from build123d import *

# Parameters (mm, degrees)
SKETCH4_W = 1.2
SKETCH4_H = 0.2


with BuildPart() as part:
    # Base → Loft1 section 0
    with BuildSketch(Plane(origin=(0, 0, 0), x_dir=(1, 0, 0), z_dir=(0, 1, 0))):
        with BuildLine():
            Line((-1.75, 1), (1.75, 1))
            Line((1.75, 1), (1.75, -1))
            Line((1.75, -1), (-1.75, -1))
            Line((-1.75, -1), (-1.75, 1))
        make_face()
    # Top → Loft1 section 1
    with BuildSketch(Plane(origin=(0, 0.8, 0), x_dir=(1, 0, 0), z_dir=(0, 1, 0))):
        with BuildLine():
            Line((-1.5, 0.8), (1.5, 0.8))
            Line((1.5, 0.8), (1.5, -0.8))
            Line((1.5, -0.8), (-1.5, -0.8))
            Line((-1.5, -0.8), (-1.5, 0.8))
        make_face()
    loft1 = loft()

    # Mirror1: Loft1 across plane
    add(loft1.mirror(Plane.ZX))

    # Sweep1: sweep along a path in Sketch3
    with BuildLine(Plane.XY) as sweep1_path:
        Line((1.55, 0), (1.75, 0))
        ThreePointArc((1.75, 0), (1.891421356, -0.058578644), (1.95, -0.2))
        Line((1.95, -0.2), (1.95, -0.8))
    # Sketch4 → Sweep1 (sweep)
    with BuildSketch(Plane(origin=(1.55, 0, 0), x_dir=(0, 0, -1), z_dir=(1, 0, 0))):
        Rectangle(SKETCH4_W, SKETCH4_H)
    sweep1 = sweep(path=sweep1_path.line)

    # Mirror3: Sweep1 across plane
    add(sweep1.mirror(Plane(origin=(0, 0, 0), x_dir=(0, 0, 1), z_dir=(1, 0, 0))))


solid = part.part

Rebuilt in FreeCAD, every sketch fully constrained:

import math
import FreeCAD as App
import Part
import Sketcher

V = App.Vector
Q = App.Units.Quantity

doc = App.newDocument("Part")
params = doc.addObject("Spreadsheet::Sheet", "Params")
for row, (alias, value) in enumerate([
    ("sketch1_height", "2 mm"),
    ("sketch1_width", "3.5 mm"),
    ("sketch2_width", "3 mm"),
    ("sketch2_height", "1.6 mm"),
    ("sketch3_width", "0.2 mm"),
    ("sketch3_height", "1.2 mm"),
    ("sketch4_radius", "0.2 mm"),
    ("sketch4_width", "0.2 mm"),
    ("sketch4_height", "0.6 mm"),
], start=1):
    params.set(f"A{row}", alias)
    params.set(f"B{row}", "=" + value)
    params.setAlias(f"B{row}", alias)

body = doc.addObject("PartDesign::Body", "Body")

# Sketch on XZ plane
sketch1 = doc.addObject("Sketcher::SketchObject", "Sketch")
body.addObject(sketch1)
sketch1.AttachmentSupport = (doc.XZ_Plane, [""])
sketch1.MapMode = "FlatFace"
sketch1.addGeometry(Part.LineSegment(V(1.8, -1, 0), V(-1.8, -1, 0)), False)
sketch1.addGeometry(Part.LineSegment(V(-1.8, -1, 0), V(-1.8, 1, 0)), False)
sketch1.addGeometry(Part.LineSegment(V(-1.8, 1, 0), V(1.8, 1, 0)), False)
sketch1.addGeometry(Part.LineSegment(V(1.8, 1, 0), V(1.8, -1, 0)), False)
sketch1.addConstraint(Sketcher.Constraint("Coincident", 0, 2, 1, 1))
sketch1.addConstraint(Sketcher.Constraint("Coincident", 1, 2, 2, 1))
sketch1.addConstraint(Sketcher.Constraint("Coincident", 2, 2, 3, 1))
sketch1.addConstraint(Sketcher.Constraint("Coincident", 3, 2, 0, 1))
sketch1.addConstraint(Sketcher.Constraint("Horizontal", 0))
sketch1.addConstraint(Sketcher.Constraint("Vertical", 1))
sketch1.addConstraint(Sketcher.Constraint("Horizontal", 2))
sketch1.addConstraint(Sketcher.Constraint("Vertical", 3))
sketch1.addConstraint(Sketcher.Constraint("Symmetric", 0, 2, 2, 2, -1, 1))
sketch1.addConstraint(Sketcher.Constraint("DistanceY", 1, 1, 1, 2, Q("2 mm")))
sketch1.addConstraint(Sketcher.Constraint("DistanceX", 0, 2, 0, 1, Q("3.5 mm")))
sketch1.setExpression("Constraints[9]", "Params.sketch1_height")
sketch1.setExpression("Constraints[10]", "Params.sketch1_width")

# Sketch on XZ plane
sketch2 = doc.addObject("Sketcher::SketchObject", "Sketch001")
body.addObject(sketch2)
sketch2.AttachmentSupport = (doc.XZ_Plane, [""])
sketch2.MapMode = "FlatFace"
sketch2.AttachmentOffset = App.Placement(V(0, 0, -0.8), App.Rotation())
sketch2.addGeometry(Part.LineSegment(V(1.5, -0.8, 0), V(-1.5, -0.8, 0)), False)
sketch2.addGeometry(Part.LineSegment(V(-1.5, -0.8, 0), V(-1.5, 0.8, 0)), False)
sketch2.addGeometry(Part.LineSegment(V(-1.5, 0.8, 0), V(1.5, 0.8, 0)), False)
sketch2.addGeometry(Part.LineSegment(V(1.5, 0.8, 0), V(1.5, -0.8, 0)), False)
sketch2.addConstraint(Sketcher.Constraint("Coincident", 0, 2, 1, 1))
sketch2.addConstraint(Sketcher.Constraint("Coincident", 1, 2, 2, 1))
sketch2.addConstraint(Sketcher.Constraint("Coincident", 2, 2, 3, 1))
sketch2.addConstraint(Sketcher.Constraint("Coincident", 3, 2, 0, 1))
sketch2.addConstraint(Sketcher.Constraint("Horizontal", 0))
sketch2.addConstraint(Sketcher.Constraint("Vertical", 1))
sketch2.addConstraint(Sketcher.Constraint("Horizontal", 2))
sketch2.addConstraint(Sketcher.Constraint("Vertical", 3))
sketch2.addConstraint(Sketcher.Constraint("Symmetric", 0, 2, 2, 2, -1, 1))
sketch2.addConstraint(Sketcher.Constraint("DistanceX", 0, 2, 0, 1, Q("3 mm")))
sketch2.addConstraint(Sketcher.Constraint("DistanceY", 1, 1, 1, 2, Q("1.6 mm")))
sketch2.setExpression("Constraints[9]", "Params.sketch2_width")
sketch2.setExpression("Constraints[10]", "Params.sketch2_height")

additiveloft = doc.addObject("PartDesign::AdditiveLoft", "AdditiveLoft")
body.addObject(additiveloft)
additiveloft.Profile = sketch1
additiveloft.Sections = [sketch2]
doc.recompute()

mirrored = doc.addObject("PartDesign::Mirrored", "Mirrored")
body.addObject(mirrored)
mirrored.Originals = [additiveloft]
mirrored.MirrorPlane = (doc.XZ_Plane, [""])
body.Tip = mirrored

# Sketch on YZ plane
sketch3 = doc.addObject("Sketcher::SketchObject", "Sketch002")
body.addObject(sketch3)
sketch3.AttachmentSupport = (doc.YZ_Plane, [""])
sketch3.MapMode = "FlatFace"
sketch3.AttachmentOffset = App.Placement(V(0, 0, 1.55), App.Rotation())
sketch3.addGeometry(Part.LineSegment(V(0.1, 0.6, 0), V(-0.1, 0.6, 0)), False)
sketch3.addGeometry(Part.LineSegment(V(-0.1, 0.6, 0), V(-0.1, -0.6, 0)), False)
sketch3.addGeometry(Part.LineSegment(V(-0.1, -0.6, 0), V(0.1, -0.6, 0)), False)
sketch3.addGeometry(Part.LineSegment(V(0.1, -0.6, 0), V(0.1, 0.6, 0)), False)
sketch3.addConstraint(Sketcher.Constraint("Coincident", 0, 2, 1, 1))
sketch3.addConstraint(Sketcher.Constraint("Coincident", 1, 2, 2, 1))
sketch3.addConstraint(Sketcher.Constraint("Coincident", 2, 2, 3, 1))
sketch3.addConstraint(Sketcher.Constraint("Coincident", 3, 2, 0, 1))
sketch3.addConstraint(Sketcher.Constraint("Horizontal", 0))
sketch3.addConstraint(Sketcher.Constraint("Vertical", 1))
sketch3.addConstraint(Sketcher.Constraint("Horizontal", 2))
sketch3.addConstraint(Sketcher.Constraint("Vertical", 3))
sketch3.addConstraint(Sketcher.Constraint("Symmetric", 0, 2, 2, 2, -1, 1))
sketch3.addConstraint(Sketcher.Constraint("DistanceX", 0, 2, 0, 1, Q("0.2 mm")))
sketch3.addConstraint(Sketcher.Constraint("DistanceY", 1, 2, 1, 1, Q("1.2 mm")))
sketch3.setExpression("Constraints[9]", "Params.sketch3_width")
sketch3.setExpression("Constraints[10]", "Params.sketch3_height")

# Sketch on XY plane
sketch4 = doc.addObject("Sketcher::SketchObject", "Sketch003")
body.addObject(sketch4)
sketch4.AttachmentSupport = (doc.XY_Plane, [""])
sketch4.MapMode = "FlatFace"
sketch4.addGeometry(Part.LineSegment(V(1.55, 0, 0), V(1.75, 0, 0)), False)
sketch4.addGeometry(Part.ArcOfCircle(Part.Circle(V(1.75, -0.2, 0), V(0, 0, 1), 0.2), math.radians(0), math.radians(90)), False)
sketch4.addGeometry(Part.LineSegment(V(1.95, -0.2, 0), V(1.95, -0.8, 0)), False)
sketch4.addConstraint(Sketcher.Constraint("Tangent", 0, 2, 1, 2))
sketch4.addConstraint(Sketcher.Constraint("Tangent", 1, 1, 2, 1))
sketch4.addConstraint(Sketcher.Constraint("Horizontal", 0))
sketch4.addConstraint(Sketcher.Constraint("Vertical", 2))
sketch4.addConstraint(Sketcher.Constraint("PointOnObject", 0, 1, -1))
sketch4.addConstraint(Sketcher.Constraint("Radius", 1, Q("0.2 mm")))
sketch4.addConstraint(Sketcher.Constraint("DistanceX", 0, 1, 0, 2, Q("0.2 mm")))
sketch4.addConstraint(Sketcher.Constraint("DistanceY", 2, 2, 2, 1, Q("0.6 mm")))
sketch4.addConstraint(Sketcher.Constraint("DistanceX", -1, 1, 1, 3, Q("1.75 mm")))
sketch4.setExpression("Constraints[5]", "Params.sketch4_radius")
sketch4.setExpression("Constraints[6]", "Params.sketch4_width")
sketch4.setExpression("Constraints[7]", "Params.sketch4_height")
doc.recompute()

additivepipe = doc.addObject("PartDesign::AdditivePipe", "AdditivePipe")
body.addObject(additivepipe)
additivepipe.Profile = sketch3
additivepipe.Spine = (sketch4, ["Edge1", "Edge2", "Edge3"])
doc.recompute()

mirrored2 = doc.addObject("PartDesign::Mirrored", "Mirrored001")
body.addObject(mirrored2)
mirrored2.Originals = [additivepipe]
mirrored2.MirrorPlane = (doc.YZ_Plane, [""])
body.Tip = mirrored2

doc.recompute()
